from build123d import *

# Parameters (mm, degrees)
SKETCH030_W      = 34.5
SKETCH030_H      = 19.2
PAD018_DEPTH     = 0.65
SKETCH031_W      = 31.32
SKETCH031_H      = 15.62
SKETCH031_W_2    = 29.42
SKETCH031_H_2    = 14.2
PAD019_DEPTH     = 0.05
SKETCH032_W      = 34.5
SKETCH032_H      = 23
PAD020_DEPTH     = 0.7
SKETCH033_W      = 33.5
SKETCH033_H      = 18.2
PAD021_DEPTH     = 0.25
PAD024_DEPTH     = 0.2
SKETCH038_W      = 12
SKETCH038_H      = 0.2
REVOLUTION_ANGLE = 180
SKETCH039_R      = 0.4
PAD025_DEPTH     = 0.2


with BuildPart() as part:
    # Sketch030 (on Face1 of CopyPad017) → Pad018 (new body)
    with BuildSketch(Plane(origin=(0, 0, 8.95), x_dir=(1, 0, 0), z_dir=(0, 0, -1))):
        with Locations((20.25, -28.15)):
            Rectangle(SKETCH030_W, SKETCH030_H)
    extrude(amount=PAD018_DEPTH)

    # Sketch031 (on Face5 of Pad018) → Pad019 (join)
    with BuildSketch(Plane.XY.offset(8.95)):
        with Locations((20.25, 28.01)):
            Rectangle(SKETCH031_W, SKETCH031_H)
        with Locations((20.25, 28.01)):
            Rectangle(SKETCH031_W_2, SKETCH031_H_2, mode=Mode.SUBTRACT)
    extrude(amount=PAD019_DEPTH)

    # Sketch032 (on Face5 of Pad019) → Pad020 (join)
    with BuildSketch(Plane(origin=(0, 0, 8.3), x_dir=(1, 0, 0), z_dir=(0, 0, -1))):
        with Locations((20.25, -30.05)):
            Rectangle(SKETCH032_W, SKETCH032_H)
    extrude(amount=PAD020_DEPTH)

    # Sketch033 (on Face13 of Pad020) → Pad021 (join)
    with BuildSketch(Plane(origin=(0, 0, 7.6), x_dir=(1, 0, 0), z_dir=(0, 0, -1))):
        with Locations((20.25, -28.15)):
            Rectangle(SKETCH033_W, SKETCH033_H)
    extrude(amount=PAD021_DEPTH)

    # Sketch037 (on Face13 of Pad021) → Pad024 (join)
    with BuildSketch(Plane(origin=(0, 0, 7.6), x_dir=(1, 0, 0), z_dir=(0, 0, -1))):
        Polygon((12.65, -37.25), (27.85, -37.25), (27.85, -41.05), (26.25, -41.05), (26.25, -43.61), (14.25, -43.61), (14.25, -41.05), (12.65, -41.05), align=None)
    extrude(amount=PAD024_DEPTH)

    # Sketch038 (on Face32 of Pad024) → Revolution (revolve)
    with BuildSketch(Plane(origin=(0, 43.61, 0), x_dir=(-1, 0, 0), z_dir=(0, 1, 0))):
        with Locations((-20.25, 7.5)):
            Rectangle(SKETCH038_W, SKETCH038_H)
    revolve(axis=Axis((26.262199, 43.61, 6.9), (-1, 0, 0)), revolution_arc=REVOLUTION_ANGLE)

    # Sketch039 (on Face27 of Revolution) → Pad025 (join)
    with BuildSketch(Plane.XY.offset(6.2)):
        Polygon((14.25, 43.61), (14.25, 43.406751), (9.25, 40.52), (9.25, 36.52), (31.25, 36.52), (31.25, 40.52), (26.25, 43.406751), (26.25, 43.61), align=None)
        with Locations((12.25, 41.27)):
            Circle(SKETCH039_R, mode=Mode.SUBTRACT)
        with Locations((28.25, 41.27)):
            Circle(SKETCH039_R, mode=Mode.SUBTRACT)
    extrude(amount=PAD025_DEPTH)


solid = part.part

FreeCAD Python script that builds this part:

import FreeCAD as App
import Part
import Sketcher
Q = App.Units.Quantity


def add_polygon(sketch, points):
    """Adds a closed chain of lines whose ends are joined by coincident constraints."""
    first, n = sketch.GeometryCount, len(points)
    for a, b in zip(points, points[1:] + points[:1]):
        sketch.addGeometry(Part.LineSegment(App.Vector(*a, 0), App.Vector(*b, 0)), False)
    for i in range(n):
        sketch.addConstraint(Sketcher.Constraint("Coincident", first + i, 2, first + (i + 1) % n, 1))

doc = App.newDocument("Part")
params = doc.addObject("Spreadsheet::Sheet", "Params")
for row, (alias, value) in enumerate([
    ("sketch1_width", "34.5 mm"),
    ("sketch1_height", "19.2 mm"),
    ("pad1_length", "0.65 mm"),
    ("sketch2_height", "14.2 mm"),
    ("sketch2_width", "31.32 mm"),
    ("sketch2_width2", "29.42 mm"),
    ("sketch2_height2", "15.62 mm"),
    ("pad2_length", "0.05 mm"),
    ("sketch3_height", "23 mm"),
    ("sketch3_width", "34.5 mm"),
    ("pad3_length", "0.7 mm"),
    ("sketch4_width", "33.5 mm"),
    ("sketch4_height", "18.2 mm"),
    ("pad4_length", "0.25 mm"),
    ("sketch5_width", "12 mm"),
    ("sketch5_width2", "15.2 mm"),
    ("sketch5_height", "3.8 mm"),
    ("sketch5_height2", "2.56 mm"),
    ("pad5_length", "0.2 mm"),
    ("sketch6_width", "12 mm"),
    ("sketch6_height", "0.2 mm"),
    ("revolution_angle", "180 deg"),
    ("sketch7_diameter", "0.8 mm"),
    ("sketch7_width", "22 mm"),
    ("sketch7_width2", "12 mm"),
    ("sketch7_height", "4 mm"),
    ("pad6_length", "0.2 mm"),
], start=1):
    params.set(f"A{row}", alias)
    params.set(f"B{row}", "=" + value)
    params.setAlias(f"B{row}", alias)

body = doc.addObject("PartDesign::Body", "Body")

sketch1 = body.newObject("Sketcher::SketchObject", "Sketch")
sketch1.AttachmentSupport = (doc.getObject("XY_Plane"), [""])
sketch1.MapMode = "FlatFace"
sketch1.AttachmentOffset = App.Placement(App.Vector(0, 0, 8.95), App.Rotation())
add_polygon(sketch1, [(3, 19), (3, 38), (38, 38), (38, 19)])
sketch1.addConstraint([
    Sketcher.Constraint("Vertical", 0),
    Sketcher.Constraint("Horizontal", 1),
    Sketcher.Constraint("Vertical", 2),
    Sketcher.Constraint("Horizontal", 3),
    Sketcher.Constraint("DistanceX", 1, 1, 1, 2, 34.5),
    Sketcher.Constraint("DistanceY", 0, 1, 0, 2, 19.2),
    Sketcher.Constraint("DistanceX", -1, 1, 0, 2, 3.0),
    Sketcher.Constraint("DistanceY", -1, 1, 0, 2, 37.75),
])
sketch1.setExpression("Constraints[8]", "Params.sketch1_width")
sketch1.setExpression("Constraints[9]", "Params.sketch1_height")
pad1 = body.newObject("PartDesign::Pad", "Pad")
pad1.Profile = sketch1
pad1.setExpression("Length", "Params.pad1_length")
pad1.Reversed = True

sketch2 = body.newObject("Sketcher::SketchObject", "Sketch001")
sketch2.AttachmentSupport = (doc.getObject("XY_Plane"), [""])
sketch2.MapMode = "FlatFace"
sketch2.AttachmentOffset = App.Placement(App.Vector(0, 0, 8.95), App.Rotation())
add_polygon(sketch2, [(5, 36), (5, 20), (36, 20), (36, 36)])
add_polygon(sketch2, [(35, 21), (6, 21), (6, 35), (35, 35)])
sketch2.addConstraint([
    Sketcher.Constraint("Vertical", 0),
    Sketcher.Constraint("Horizontal", 1),
    Sketcher.Constraint("Vertical", 2),
    Sketcher.Constraint("Horizontal", 3),
    Sketcher.Constraint("Horizontal", 4),
    Sketcher.Constraint("Vertical", 5),
    Sketcher.Constraint("Horizontal", 6),
    Sketcher.Constraint("Vertical", 7),
    Sketcher.Constraint("DistanceY", 5, 1, 5, 2, 14.2),
    Sketcher.Constraint("DistanceX", 1, 1, 1, 2, 31.32),
    Sketcher.Constraint("DistanceX", 4, 2, 4, 1, 29.42),
    Sketcher.Constraint("DistanceY", 0, 2, 0, 1, 15.62),
    Sketcher.Constraint("DistanceY", -1, 1, 0, 2, 20.2),
    Sketcher.Constraint("DistanceX", -1, 1, 0, 2, 4.59),
    Sketcher.Constraint("DistanceX", -1, 1, 4, 2, 5.54),
    Sketcher.Constraint("DistanceY", -1, 1, 4, 2, 20.91),
])
sketch2.setExpression("Constraints[16]", "Params.sketch2_height")
sketch2.setExpression("Constraints[17]", "Params.sketch2_width")
sketch2.setExpression("Constraints[18]", "Params.sketch2_width2")
sketch2.setExpression("Constraints[19]", "Params.sketch2_height2")
pad2 = body.newObject("PartDesign::Pad", "Pad001")
pad2.Profile = sketch2
pad2.setExpression("Length", "Params.pad2_length")

sketch3 = body.newObject("Sketcher::SketchObject", "Sketch002")
sketch3.AttachmentSupport = (doc.getObject("XY_Plane"), [""])
sketch3.MapMode = "FlatFace"
sketch3.AttachmentOffset = App.Placement(App.Vector(0, 0, 8.3), App.Rotation())
add_polygon(sketch3, [(3, 19), (3, 42), (38, 42), (38, 19)])
sketch3.addConstraint([
    Sketcher.Constraint("Vertical", 0),
    Sketcher.Constraint("Horizontal", 1),
    Sketcher.Constraint("Vertical", 2),
    Sketcher.Constraint("Horizontal", 3),
    Sketcher.Constraint("DistanceY", 0, 1, 0, 2, 23.0),
    Sketcher.Constraint("DistanceX", 1, 1, 1, 2, 34.5),
    Sketcher.Constraint("DistanceX", -1, 1, 0, 2, 3.0),
    Sketcher.Constraint("DistanceY", -1, 1, 0, 2, 41.55),
])
sketch3.setExpression("Constraints[8]", "Params.sketch3_height")
sketch3.setExpression("Constraints[9]", "Params.sketch3_width")
pad3 = body.newObject("PartDesign::Pad", "Pad002")
pad3.Profile = sketch3
pad3.setExpression("Length", "Params.pad3_length")
pad3.Reversed = True

sketch4 = body.newObject("Sketcher::SketchObject", "Sketch003")
sketch4.AttachmentSupport = (doc.getObject("XY_Plane"), [""])
sketch4.MapMode = "FlatFace"
sketch4.AttachmentOffset = App.Placement(App.Vector(0, 0, 7.6), App.Rotation())
add_polygon(sketch4, [(4, 19), (4, 37), (37, 37), (37, 19)])
sketch4.addConstraint([
    Sketcher.Constraint("Vertical", 0),
    Sketcher.Constraint("Horizontal", 1),
    Sketcher.Constraint("Vertical", 2),
    Sketcher.Constraint("Horizontal", 3),
    Sketcher.Constraint("DistanceX", 1, 1, 1, 2, 33.5),
    Sketcher.Constraint("DistanceY", 0, 1, 0, 2, 18.2),
    Sketcher.Constraint("DistanceX", -1, 1, 1, 2, 37.0),
    Sketcher.Constraint("DistanceY", -1, 1, 0, 2, 37.25),
])
sketch4.setExpression("Constraints[8]", "Params.sketch4_width")
sketch4.setExpression("Constraints[9]", "Params.sketch4_height")
pad4 = body.newObject("PartDesign::Pad", "Pad003")
pad4.Profile = sketch4
pad4.setExpression("Length", "Params.pad4_length")
pad4.Reversed = True

sketch5 = body.newObject("Sketcher::SketchObject", "Sketch004")
sketch5.AttachmentSupport = (doc.getObject("XY_Plane"), [""])
sketch5.MapMode = "FlatFace"
sketch5.AttachmentOffset = App.Placement(App.Vector(0, 0, 7.6), App.Rotation())
add_polygon(sketch5, [(27.9, 37.2), (12.7, 37.2), (12.7, 41), (14.2, 41), (14.2, 43.6), (26.2, 43.6), (26.2, 41), (27.9, 41)])
sketch5.addConstraint([
    Sketcher.Constraint("Horizontal", 0),
    Sketcher.Constraint("Vertical", 1),
    Sketcher.Constraint("Horizontal", 2),
    Sketcher.Constraint("Vertical", 3),
    Sketcher.Constraint("Horizontal", 4),
    Sketcher.Constraint("Vertical", 5),
    Sketcher.Constraint("Horizontal", 6),
    Sketcher.Constraint("Vertical", 7),
    Sketcher.Constraint("Horizontal", 2, 2, 5, 2),
    Sketcher.Constraint("Equal", 2, 6),
    Sketcher.Constraint("DistanceX", 4, 1, 4, 2, 12.0),
    Sketcher.Constraint("DistanceX", 0, 2, 0, 1, 15.2),
    Sketcher.Constraint("DistanceY", 1, 1, 1, 2, 3.8),
    Sketcher.Constraint("DistanceY", 3, 1, 3, 2, 2.56),
    Sketcher.Constraint("DistanceX", -1, 1, 0, 2, 12.65),
    Sketcher.Constraint("DistanceY", -1, 1, 0, 2, 37.25),
])
sketch5.setExpression("Constraints[18]", "Params.sketch5_width")
sketch5.setExpression("Constraints[19]", "Params.sketch5_width2")
sketch5.setExpression("Constraints[20]", "Params.sketch5_height")
sketch5.setExpression("Constraints[21]", "Params.sketch5_height2")
pad5 = body.newObject("PartDesign::Pad", "Pad004")
pad5.Profile = sketch5
pad5.setExpression("Length", "Params.pad5_length")
pad5.Reversed = True

sketch6 = body.newObject("Sketcher::SketchObject", "Sketch005")
sketch6.AttachmentSupport = (doc.getObject("XZ_Plane"), [""])
sketch6.MapMode = "FlatFace"
sketch6.AttachmentOffset = App.Placement(App.Vector(0, 0, -43.61), App.Rotation())
add_polygon(sketch6, [(26.25, 7.6), (26.25, 7.4), (14.25, 7.4), (14.25, 7.6)])
sketch6.addGeometry(Part.LineSegment(App.Vector(26.25, 6.9, 0), App.Vector(14.25, 6.9, 0)), True)
sketch6.addConstraint([
    Sketcher.Constraint("Vertical", 0),
    Sketcher.Constraint("Horizontal", 1),
    Sketcher.Constraint("Vertical", 2),
    Sketcher.Constraint("Horizontal", 3),
    Sketcher.Constraint("Horizontal", 4),
    Sketcher.Constraint("Vertical", 3, 2, 4, 1),
    Sketcher.Constraint("Vertical", 2, 2, 4, 2),
    Sketcher.Constraint("DistanceX", 1, 2, 1, 1, 12.0),
    Sketcher.Constraint("DistanceY", 0, 2, 0, 1, 0.2),
    Sketcher.Constraint("DistanceY", -1, 1, 0, 2, 7.4),
    Sketcher.Constraint("DistanceY", -1, 1, 4, 1, 6.9),
    Sketcher.Constraint("DistanceX", -1, 1, 0, 2, 26.25),
])
sketch6.setExpression("Constraints[11]", "Params.sketch6_width")
sketch6.setExpression("Constraints[12]", "Params.sketch6_height")
revolution = body.newObject("PartDesign::Revolution", "Revolution")
revolution.Profile = sketch6
revolution.ReferenceAxis = (sketch6, ["Axis0"])
revolution.setExpression("Angle", "Params.revolution_angle")

sketch7 = body.newObject("Sketcher::SketchObject", "Sketch006")
sketch7.AttachmentSupport = (doc.getObject("XY_Plane"), [""])
sketch7.MapMode = "FlatFace"
sketch7.AttachmentOffset = App.Placement(App.Vector(0, 0, 6.2), App.Rotation())
add_polygon(sketch7, [(14.25, 43.61), (14.25, 43.41), (9.25, 40.52), (9.25, 36.52), (31.25, 36.52), (31.25, 40.52), (26.25, 43.41), (26.25, 43.61)])
sketch7.addGeometry(Part.Circle(App.Vector(12.25, 41.27, 0), App.Vector(0, 0, 1), 0.4), False)
sketch7.addGeometry(Part.Circle(App.Vector(28.25, 41.27, 0), App.Vector(0, 0, 1), 0.4), False)
sketch7.addConstraint([
    Sketcher.Constraint("Vertical", 0),
    Sketcher.Constraint("Vertical", 2),
    Sketcher.Constraint("Horizontal", 3),
    Sketcher.Constraint("Vertical", 4),
    Sketcher.Constraint("Vertical", 6),
    Sketcher.Constraint("Horizontal", 7),
    Sketcher.Constraint("Equal", 8, 9),
    Sketcher.Constraint("Horizontal", 8, 3, 9, 3),
    Sketcher.Constraint("Horizontal", 1, 2, 4, 2),
    Sketcher.Constraint("Horizontal", 0, 2, 5, 2),
    Sketcher.Constraint("Equal", 1, 5),
    Sketcher.Constraint("Diameter", 8, 0.8),
    Sketcher.Constraint("DistanceX", 3, 1, 3, 2, 22.0),
    Sketcher.Constraint("DistanceX", 7, 2, 7, 1, 12.0),
    Sketcher.Constraint("DistanceY", 2, 2, 2, 1, 4.0),
    Sketcher.Constraint("Angle", 1, Q("-150.000003 deg")),
    Sketcher.Constraint("DistanceX", 8, 3, 9, 3, 16.0),
    Sketcher.Constraint("DistanceX", 8, 3, 0, 2, 2.0),
    Sketcher.Constraint("DistanceX", -1, 1, 8, 3, 12.25),
    Sketcher.Constraint("DistanceY", -1, 1, 8, 3, 41.27),
    Sketcher.Constraint("DistanceY", -1, 1, 1, 2, 40.52),
    Sketcher.Constraint("DistanceY", -1, 1, 6, 2, 43.61),
])
sketch7.setExpression("Constraints[19]", "Params.sketch7_diameter")
sketch7.setExpression("Constraints[20]", "Params.sketch7_width")
sketch7.setExpression("Constraints[21]", "Params.sketch7_width2")
sketch7.setExpression("Constraints[22]", "Params.sketch7_height")
pad6 = body.newObject("PartDesign::Pad", "Pad005")
pad6.Profile = sketch7
pad6.setExpression("Length", "Params.pad6_length")

doc.recompute()
